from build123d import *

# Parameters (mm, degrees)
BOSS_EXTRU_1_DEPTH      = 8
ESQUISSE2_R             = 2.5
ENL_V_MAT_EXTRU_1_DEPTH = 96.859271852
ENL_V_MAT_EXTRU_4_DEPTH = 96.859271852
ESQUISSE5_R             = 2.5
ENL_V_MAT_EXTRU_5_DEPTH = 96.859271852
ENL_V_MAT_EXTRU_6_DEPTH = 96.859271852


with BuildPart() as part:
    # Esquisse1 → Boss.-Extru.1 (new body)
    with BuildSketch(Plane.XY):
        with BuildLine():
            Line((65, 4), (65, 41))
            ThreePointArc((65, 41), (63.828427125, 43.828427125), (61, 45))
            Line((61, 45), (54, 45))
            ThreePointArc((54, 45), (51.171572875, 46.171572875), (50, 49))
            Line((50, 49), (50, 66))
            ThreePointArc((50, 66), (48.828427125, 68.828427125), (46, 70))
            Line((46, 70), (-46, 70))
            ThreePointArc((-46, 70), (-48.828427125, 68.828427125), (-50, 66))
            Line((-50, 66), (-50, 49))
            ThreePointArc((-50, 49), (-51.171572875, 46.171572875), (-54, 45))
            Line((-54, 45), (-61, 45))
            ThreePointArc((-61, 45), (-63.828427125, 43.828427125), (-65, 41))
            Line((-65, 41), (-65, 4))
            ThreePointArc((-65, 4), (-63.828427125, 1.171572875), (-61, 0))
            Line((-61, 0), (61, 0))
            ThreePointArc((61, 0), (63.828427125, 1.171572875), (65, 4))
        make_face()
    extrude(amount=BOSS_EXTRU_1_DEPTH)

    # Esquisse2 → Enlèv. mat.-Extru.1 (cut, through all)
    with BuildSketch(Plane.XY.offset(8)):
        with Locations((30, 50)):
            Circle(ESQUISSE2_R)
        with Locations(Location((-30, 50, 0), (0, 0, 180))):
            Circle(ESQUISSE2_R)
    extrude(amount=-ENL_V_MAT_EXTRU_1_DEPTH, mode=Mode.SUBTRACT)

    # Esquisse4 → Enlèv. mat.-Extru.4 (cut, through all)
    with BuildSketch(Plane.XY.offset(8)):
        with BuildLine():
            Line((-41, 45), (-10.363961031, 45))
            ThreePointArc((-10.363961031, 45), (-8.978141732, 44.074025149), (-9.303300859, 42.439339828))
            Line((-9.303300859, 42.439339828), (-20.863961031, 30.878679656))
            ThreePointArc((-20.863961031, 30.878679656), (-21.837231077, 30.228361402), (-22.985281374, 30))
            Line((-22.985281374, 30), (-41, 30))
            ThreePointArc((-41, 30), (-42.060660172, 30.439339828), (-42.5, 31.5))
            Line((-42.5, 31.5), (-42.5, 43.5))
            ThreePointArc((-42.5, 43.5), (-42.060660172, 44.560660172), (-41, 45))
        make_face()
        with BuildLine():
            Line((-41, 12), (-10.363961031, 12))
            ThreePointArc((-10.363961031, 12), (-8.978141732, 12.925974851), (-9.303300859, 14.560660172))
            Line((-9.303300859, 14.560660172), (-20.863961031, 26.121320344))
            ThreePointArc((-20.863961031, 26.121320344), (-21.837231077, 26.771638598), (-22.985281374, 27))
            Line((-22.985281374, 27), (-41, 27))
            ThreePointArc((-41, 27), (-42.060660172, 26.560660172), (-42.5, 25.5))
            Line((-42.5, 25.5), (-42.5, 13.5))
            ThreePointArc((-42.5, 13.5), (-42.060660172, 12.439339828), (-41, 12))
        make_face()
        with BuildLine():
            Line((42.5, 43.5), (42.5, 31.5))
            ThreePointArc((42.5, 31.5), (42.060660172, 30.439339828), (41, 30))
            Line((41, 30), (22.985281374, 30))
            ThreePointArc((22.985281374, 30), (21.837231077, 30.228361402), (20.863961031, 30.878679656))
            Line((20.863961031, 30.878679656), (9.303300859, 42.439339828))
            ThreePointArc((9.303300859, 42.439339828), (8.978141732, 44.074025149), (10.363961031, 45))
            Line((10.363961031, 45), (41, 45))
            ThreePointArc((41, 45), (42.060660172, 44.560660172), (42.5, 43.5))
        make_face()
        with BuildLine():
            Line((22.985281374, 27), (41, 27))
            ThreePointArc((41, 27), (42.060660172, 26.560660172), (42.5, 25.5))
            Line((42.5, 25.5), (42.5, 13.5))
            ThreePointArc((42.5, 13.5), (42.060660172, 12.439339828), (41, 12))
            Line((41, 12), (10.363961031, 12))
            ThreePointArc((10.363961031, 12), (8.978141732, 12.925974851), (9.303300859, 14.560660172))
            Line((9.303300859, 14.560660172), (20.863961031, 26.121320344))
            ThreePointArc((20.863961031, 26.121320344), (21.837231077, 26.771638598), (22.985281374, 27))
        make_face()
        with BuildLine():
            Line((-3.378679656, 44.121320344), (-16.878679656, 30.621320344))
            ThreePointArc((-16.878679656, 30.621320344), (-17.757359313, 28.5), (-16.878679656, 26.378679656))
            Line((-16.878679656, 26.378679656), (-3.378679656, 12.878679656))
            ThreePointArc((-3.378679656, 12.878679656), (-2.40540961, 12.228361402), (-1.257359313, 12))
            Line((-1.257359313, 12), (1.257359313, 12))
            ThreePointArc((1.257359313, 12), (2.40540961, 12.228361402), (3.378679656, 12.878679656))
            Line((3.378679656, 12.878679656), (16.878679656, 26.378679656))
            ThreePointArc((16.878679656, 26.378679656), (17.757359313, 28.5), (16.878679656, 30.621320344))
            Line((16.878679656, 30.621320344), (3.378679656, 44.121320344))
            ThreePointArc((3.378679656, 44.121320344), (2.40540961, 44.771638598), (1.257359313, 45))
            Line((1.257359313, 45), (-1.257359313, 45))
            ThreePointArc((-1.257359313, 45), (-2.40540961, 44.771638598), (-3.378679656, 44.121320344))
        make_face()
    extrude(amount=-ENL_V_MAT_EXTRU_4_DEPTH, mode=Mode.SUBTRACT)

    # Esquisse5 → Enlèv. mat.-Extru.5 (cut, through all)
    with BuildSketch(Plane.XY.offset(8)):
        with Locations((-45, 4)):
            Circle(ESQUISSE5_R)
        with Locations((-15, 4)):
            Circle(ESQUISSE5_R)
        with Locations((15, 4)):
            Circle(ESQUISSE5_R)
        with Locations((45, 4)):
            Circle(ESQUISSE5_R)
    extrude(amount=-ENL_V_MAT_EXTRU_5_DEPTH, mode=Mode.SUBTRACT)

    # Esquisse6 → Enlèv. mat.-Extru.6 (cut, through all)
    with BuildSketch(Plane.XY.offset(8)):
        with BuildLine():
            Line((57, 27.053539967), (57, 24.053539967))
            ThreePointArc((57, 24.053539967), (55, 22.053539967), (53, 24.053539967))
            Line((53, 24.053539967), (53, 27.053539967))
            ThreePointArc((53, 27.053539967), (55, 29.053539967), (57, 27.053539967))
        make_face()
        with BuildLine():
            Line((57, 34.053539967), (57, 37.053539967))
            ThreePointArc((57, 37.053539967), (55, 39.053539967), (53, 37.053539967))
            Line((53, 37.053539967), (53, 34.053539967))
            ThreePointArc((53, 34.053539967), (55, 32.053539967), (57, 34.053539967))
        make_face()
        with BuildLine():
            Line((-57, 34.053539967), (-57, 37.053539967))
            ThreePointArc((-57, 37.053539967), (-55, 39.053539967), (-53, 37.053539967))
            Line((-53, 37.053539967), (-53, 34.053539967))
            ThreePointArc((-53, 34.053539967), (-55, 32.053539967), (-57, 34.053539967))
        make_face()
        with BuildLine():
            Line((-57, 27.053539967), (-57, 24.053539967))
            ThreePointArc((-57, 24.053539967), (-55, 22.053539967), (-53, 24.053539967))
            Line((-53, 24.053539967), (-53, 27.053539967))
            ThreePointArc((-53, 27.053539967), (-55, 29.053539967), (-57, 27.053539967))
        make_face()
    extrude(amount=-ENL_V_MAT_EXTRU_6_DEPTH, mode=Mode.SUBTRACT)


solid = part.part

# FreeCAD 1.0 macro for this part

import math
import FreeCAD as App
import Part
import Sketcher

doc = App.newDocument("Part")
body = doc.addObject("PartDesign::Body", "Body")

sketch1 = body.newObject("Sketcher::SketchObject", "Sketch")
sketch1.AttachmentSupport = (doc.getObject("XY_Plane"), [""])
sketch1.MapMode = "FlatFace"
sketch1.addGeometry([
    Part.LineSegment(App.Vector(65, 4, 0), App.Vector(65, 41, 0)),
    Part.ArcOfCircle(Part.Circle(App.Vector(61, 41, 0), App.Vector(0, 0, 1), 4), math.radians(0), math.radians(90)),
    Part.LineSegment(App.Vector(61, 45, 0), App.Vector(54, 45, 0)),
    Part.ArcOfCircle(Part.Circle(App.Vector(54, 49, 0), App.Vector(0, 0, 1), 4), math.radians(180), math.radians(270)),
    Part.LineSegment(App.Vector(50, 49, 0), App.Vector(50, 66, 0)),
    Part.ArcOfCircle(Part.Circle(App.Vector(46, 66, 0), App.Vector(0, 0, 1), 4), math.radians(0), math.radians(90)),
    Part.LineSegment(App.Vector(46, 70, 0), App.Vector(-46, 70, 0)),
    Part.ArcOfCircle(Part.Circle(App.Vector(-46, 66, 0), App.Vector(0, 0, 1), 4), math.radians(90), math.radians(180)),
    Part.LineSegment(App.Vector(-50, 66, 0), App.Vector(-50, 49, 0)),
    Part.ArcOfCircle(Part.Circle(App.Vector(-54, 49, 0), App.Vector(0, 0, 1), 4), math.radians(-90), math.radians(0)),
    Part.LineSegment(App.Vector(-54, 45, 0), App.Vector(-61, 45, 0)),
    Part.ArcOfCircle(Part.Circle(App.Vector(-61, 41, 0), App.Vector(0, 0, 1), 4), math.radians(90), math.radians(180)),
    Part.LineSegment(App.Vector(-65, 41, 0), App.Vector(-65, 4, 0)),
    Part.ArcOfCircle(Part.Circle(App.Vector(-61, 4, 0), App.Vector(0, 0, 1), 4), math.radians(180), math.radians(270)),
    Part.LineSegment(App.Vector(-61, 0, 0), App.Vector(61, 0, 0)),
    Part.ArcOfCircle(Part.Circle(App.Vector(61, 4, 0), App.Vector(0, 0, 1), 4), math.radians(-90), math.radians(0)),
], False)
sketch1.addConstraint([
    Sketcher.Constraint("Tangent", 0, 2, 1, 1),
    Sketcher.Constraint("Tangent", 1, 2, 2, 1),
    Sketcher.Constraint("Tangent", 2, 2, 3, 2),
    Sketcher.Constraint("Tangent", 3, 1, 4, 1),
    Sketcher.Constraint("Tangent", 4, 2, 5, 1),
    Sketcher.Constraint("Tangent", 5, 2, 6, 1),
    Sketcher.Constraint("Tangent", 6, 2, 7, 1),
    Sketcher.Constraint("Tangent", 7, 2, 8, 1),
    Sketcher.Constraint("Tangent", 8, 2, 9, 2),
    Sketcher.Constraint("Tangent", 9, 1, 10, 1),
    Sketcher.Constraint("Tangent", 10, 2, 11, 1),
    Sketcher.Constraint("Tangent", 11, 2, 12, 1),
    Sketcher.Constraint("Tangent", 12, 2, 13, 1),
    Sketcher.Constraint("Tangent", 13, 2, 14, 1),
    Sketcher.Constraint("Tangent", 14, 2, 15, 1),
    Sketcher.Constraint("Tangent", 15, 2, 0, 1),
    Sketcher.Constraint("Vertical", 0),
    Sketcher.Constraint("Horizontal", 2),
    Sketcher.Constraint("Vertical", 4),
    Sketcher.Constraint("Horizontal", 6),
    Sketcher.Constraint("Vertical", 8),
    Sketcher.Constraint("Horizontal", 10),
    Sketcher.Constraint("Vertical", 12),
    Sketcher.Constraint("Horizontal", 14),
    Sketcher.Constraint("Equal", 1, 3),
    Sketcher.Constraint("Equal", 3, 5),
    Sketcher.Constraint("Equal", 5, 7),
    Sketcher.Constraint("Equal", 7, 9),
    Sketcher.Constraint("Equal", 9, 11),
    Sketcher.Constraint("Equal", 11, 13),
    Sketcher.Constraint("Equal", 13, 15),
    Sketcher.Constraint("Symmetric", 13, 2, 14, 2, -1, 1),
    Sketcher.Constraint("Symmetric", 3, 3, 9, 3, -2),
    Sketcher.Constraint("Radius", 1, 4.0),
    Sketcher.Constraint("DistanceX", 2, 2, 2, 1, 7.0),
    Sketcher.Constraint("DistanceX", 6, 2, 6, 1, 92.0),
    Sketcher.Constraint("DistanceY", 0, 1, 0, 2, 37.0),
    Sketcher.Constraint("DistanceY", 4, 1, 4, 2, 17.0),
])
pad1 = body.newObject("PartDesign::Pad", "Pad")
pad1.Profile = sketch1
pad1.Length = 8

sketch2 = body.newObject("Sketcher::SketchObject", "Sketch001")
sketch2.AttachmentSupport = (doc.getObject("XY_Plane"), [""])
sketch2.MapMode = "FlatFace"
sketch2.AttachmentOffset = App.Placement(App.Vector(0, 0, 8), App.Rotation())
sketch2.addGeometry([
    Part.Circle(App.Vector(30, 50, 0), App.Vector(0, 0, 1), 2.5),
    Part.Circle(App.Vector(-30, 50, 0), App.Vector(0, 0, 1), 2.5),
], False)
sketch2.addConstraint([
    Sketcher.Constraint("Equal", 0, 1),
    Sketcher.Constraint("Symmetric", 0, 3, 1, 3, -2),
    Sketcher.Constraint("Diameter", 0, 5.0),
    Sketcher.Constraint("DistanceX", -1, 1, 0, 3, 30.0),
    Sketcher.Constraint("DistanceY", -1, 1, 0, 3, 50.0),
])
pocket1 = body.newObject("PartDesign::Pocket", "Pocket")
pocket1.Profile = sketch2
pocket1.Type = "ThroughAll"

sketch3 = body.newObject("Sketcher::SketchObject", "Sketch002")
sketch3.AttachmentSupport = (doc.getObject("XY_Plane"), [""])
sketch3.MapMode = "FlatFace"
sketch3.AttachmentOffset = App.Placement(App.Vector(0, 0, 8), App.Rotation())
sketch3.addGeometry([
    Part.LineSegment(App.Vector(-10.363961, 45, 0), App.Vector(-41, 45, 0)),
    Part.ArcOfCircle(Part.Circle(App.Vector(-41, 43.5, 0), App.Vector(0, 0, 1), 1.5), math.radians(90), math.radians(180)),
    Part.LineSegment(App.Vector(-42.5, 43.5, 0), App.Vector(-42.5, 31.5, 0)),
    Part.ArcOfCircle(Part.Circle(App.Vector(-41, 31.5, 0), App.Vector(0, 0, 1), 1.5), math.radians(180), math.radians(270)),
    Part.LineSegment(App.Vector(-41, 30, 0), App.Vector(-22.985281, 30, 0)),
    Part.ArcOfCircle(Part.Circle(App.Vector(-22.985281, 33, 0), App.Vector(0, 0, 1), 3), math.radians(-90), math.radians(-45)),
    Part.LineSegment(App.Vector(-20.863961, 30.87868, 0), App.Vector(-9.303301, 42.43934, 0)),
    Part.ArcOfCircle(Part.Circle(App.Vector(-10.363961, 43.5, 0), App.Vector(0, 0, 1), 1.5), math.radians(-45), math.radians(90)),
    Part.LineSegment(App.Vector(-41, 12, 0), App.Vector(-10.363961, 12, 0)),
    Part.ArcOfCircle(Part.Circle(App.Vector(-10.363961, 13.5, 0), App.Vector(0, 0, 1), 1.5), math.radians(-90), math.radians(45)),
    Part.LineSegment(App.Vector(-9.303301, 14.56066, 0), App.Vector(-20.863961, 26.12132, 0)),
    Part.ArcOfCircle(Part.Circle(App.Vector(-22.985281, 24, 0), App.Vector(0, 0, 1), 3), math.radians(45), math.radians(90)),
    Part.LineSegment(App.Vector(-22.985281, 27, 0), App.Vector(-41, 27, 0)),
    Part.ArcOfCircle(Part.Circle(App.Vector(-41, 25.5, 0), App.Vector(0, 0, 1), 1.5), math.radians(90), math.radians(180)),
    Part.LineSegment(App.Vector(-42.5, 25.5, 0), App.Vector(-42.5, 13.5, 0)),
    Part.ArcOfCircle(Part.Circle(App.Vector(-41, 13.5, 0), App.Vector(0, 0, 1), 1.5), math.radians(180), math.radians(270)),
    Part.LineSegment(App.Vector(42.5, 31.5, 0), App.Vector(42.5, 43.5, 0)),
    Part.ArcOfCircle(Part.Circle(App.Vector(41, 43.5, 0), App.Vector(0, 0, 1), 1.5), math.radians(0), math.radians(90)),
    Part.LineSegment(App.Vector(41, 45, 0), App.Vector(10.363961, 45, 0)),
    Part.ArcOfCircle(Part.Circle(App.Vector(10.363961, 43.5, 0), App.Vector(0, 0, 1), 1.5), math.radians(90), math.radians(225)),
    Part.LineSegment(App.Vector(9.303301, 42.43934, 0), App.Vector(20.863961, 30.87868, 0)),
    Part.ArcOfCircle(Part.Circle(App.Vector(22.985281, 33, 0), App.Vector(0, 0, 1), 3), math.radians(-135), math.radians(-90)),
    Part.LineSegment(App.Vector(22.985281, 30, 0), App.Vector(41, 30, 0)),
    Part.ArcOfCircle(Part.Circle(App.Vector(41, 31.5, 0), App.Vector(0, 0, 1), 1.5), math.radians(-90), math.radians(0)),
    Part.LineSegment(App.Vector(41, 27, 0), App.Vector(22.985281, 27, 0)),
    Part.ArcOfCircle(Part.Circle(App.Vector(22.985281, 24, 0), App.Vector(0, 0, 1), 3), math.radians(90), math.radians(135)),
    Part.LineSegment(App.Vector(20.863961, 26.12132, 0), App.Vector(9.303301, 14.56066, 0)),
    Part.ArcOfCircle(Part.Circle(App.Vector(10.363961, 13.5, 0), App.Vector(0, 0, 1), 1.5), math.radians(135), math.radians(270)),
    Part.LineSegment(App.Vector(10.363961, 12, 0), App.Vector(41, 12, 0)),
    Part.ArcOfCircle(Part.Circle(App.Vector(41, 13.5, 0), App.Vector(0, 0, 1), 1.5), math.radians(-90), math.radians(0)),
    Part.LineSegment(App.Vector(42.5, 13.5, 0), App.Vector(42.5, 25.5, 0)),
    Part.ArcOfCircle(Part.Circle(App.Vector(41, 25.5, 0), App.Vector(0, 0, 1), 1.5), math.radians(0), math.radians(90)),
    Part.LineSegment(App.Vector(-3.37868, 44.12132, 0), App.Vector(-16.87868, 30.62132, 0)),
    Part.ArcOfCircle(Part.Circle(App.Vector(-14.757359, 28.5, 0), App.Vector(0, 0, 1), 3), math.radians(135), math.radians(225)),
    Part.LineSegment(App.Vector(-16.87868, 26.37868, 0), App.Vector(-3.37868, 12.87868, 0)),
    Part.ArcOfCircle(Part.Circle(App.Vector(-1.257359, 15, 0), App.Vector(0, 0, 1), 3), math.radians(-135), math.radians(-90)),
    Part.LineSegment(App.Vector(-1.257359, 12, 0), App.Vector(1.257359, 12, 0)),
    Part.ArcOfCircle(Part.Circle(App.Vector(1.257359, 15, 0), App.Vector(0, 0, 1), 3), math.radians(-90), math.radians(-45)),
    Part.LineSegment(App.Vector(3.37868, 12.87868, 0), App.Vector(16.87868, 26.37868, 0)),
    Part.ArcOfCircle(Part.Circle(App.Vector(14.757359, 28.5, 0), App.Vector(0, 0, 1), 3), math.radians(-45), math.radians(45)),
    Part.LineSegment(App.Vector(16.87868, 30.62132, 0), App.Vector(3.37868, 44.12132, 0)),
    Part.ArcOfCircle(Part.Circle(App.Vector(1.257359, 42, 0), App.Vector(0, 0, 1), 3), math.radians(45), math.radians(90)),
    Part.LineSegment(App.Vector(1.257359, 45, 0), App.Vector(-1.257359, 45, 0)),
    Part.ArcOfCircle(Part.Circle(App.Vector(-1.257359, 42, 0), App.Vector(0, 0, 1), 3), math.radians(90), math.radians(135)),
], False)
sketch3.addConstraint([
    Sketcher.Constraint("Tangent", 0, 2, 1, 1),
    Sketcher.Constraint("Tangent", 1, 2, 2, 1),
    Sketcher.Constraint("Tangent", 2, 2, 3, 1),
    Sketcher.Constraint("Tangent", 3, 2, 4, 1),
    Sketcher.Constraint("Tangent", 4, 2, 5, 1),
    Sketcher.Constraint("Tangent", 5, 2, 6, 1),
    Sketcher.Constraint("Tangent", 6, 2, 7, 1),
    Sketcher.Constraint("Tangent", 7, 2, 0, 1),
    Sketcher.Constraint("Tangent", 8, 2, 9, 1),
    Sketcher.Constraint("Tangent", 9, 2, 10, 1),
    Sketcher.Constraint("Tangent", 10, 2, 11, 1),
    Sketcher.Constraint("Tangent", 11, 2, 12, 1),
    Sketcher.Constraint("Tangent", 12, 2, 13, 1),
    Sketcher.Constraint("Tangent", 13, 2, 14, 1),
    Sketcher.Constraint("Tangent", 14, 2, 15, 1),
    Sketcher.Constraint("Tangent", 15, 2, 8, 1),
    Sketcher.Constraint("Tangent", 16, 2, 17, 1),
    Sketcher.Constraint("Tangent", 17, 2, 18, 1),
    Sketcher.Constraint("Tangent", 18, 2, 19, 1),
    Sketcher.Constraint("Tangent", 19, 2, 20, 1),
    Sketcher.Constraint("Tangent", 20, 2, 21, 1),
    Sketcher.Constraint("Tangent", 21, 2, 22, 1),
    Sketcher.Constraint("Tangent", 22, 2, 23, 1),
    Sketcher.Constraint("Tangent", 23, 2, 16, 1),
    Sketcher.Constraint("Tangent", 24, 2, 25, 1),
    Sketcher.Constraint("Tangent", 25, 2, 26, 1),
    Sketcher.Constraint("Tangent", 26, 2, 27, 1),
    Sketcher.Constraint("Tangent", 27, 2, 28, 1),
    Sketcher.Constraint("Tangent", 28, 2, 29, 1),
    Sketcher.Constraint("Tangent", 29, 2, 30, 1),
    Sketcher.Constraint("Tangent", 30, 2, 31, 1),
    Sketcher.Constraint("Tangent", 31, 2, 24, 1),
    Sketcher.Constraint("Tangent", 32, 2, 33, 1),
    Sketcher.Constraint("Tangent", 33, 2, 34, 1),
    Sketcher.Constraint("Tangent", 34, 2, 35, 1),
    Sketcher.Constraint("Tangent", 35, 2, 36, 1),
    Sketcher.Constraint("Tangent", 36, 2, 37, 1),
    Sketcher.Constraint("Tangent", 37, 2, 38, 1),
    Sketcher.Constraint("Tangent", 38, 2, 39, 1),
    Sketcher.Constraint("Tangent", 39, 2, 40, 1),
    Sketcher.Constraint("Tangent", 40, 2, 41, 1),
    Sketcher.Constraint("Tangent", 41, 2, 42, 1),
    Sketcher.Constraint("Tangent", 42, 2, 43, 1),
    Sketcher.Constraint("Tangent", 43, 2, 32, 1),
    Sketcher.Constraint("Horizontal", 0),
    Sketcher.Constraint("Vertical", 2),
    Sketcher.Constraint("Horizontal", 4),
    Sketcher.Constraint("Horizontal", 8),
    Sketcher.Constraint("Horizontal", 12),
    Sketcher.Constraint("Vertical", 14),
    Sketcher.Constraint("Vertical", 16),
    Sketcher.Constraint("Horizontal", 18),
    Sketcher.Constraint("Horizontal", 22),
    Sketcher.Constraint("Horizontal", 24),
    Sketcher.Constraint("Horizontal", 28),
    Sketcher.Constraint("Vertical", 30),
    Sketcher.Constraint("Horizontal", 36),
    Sketcher.Constraint("Horizontal", 42),
    Sketcher.Constraint("Equal", 1, 3),
    Sketcher.Constraint("Equal", 3, 7),
    Sketcher.Constraint("Equal", 7, 9),
    Sketcher.Constraint("Equal", 5, 11),
    Sketcher.Constraint("Equal", 9, 13),
    Sketcher.Constraint("Equal", 13, 15),
    Sketcher.Constraint("Equal", 15, 17),
    Sketcher.Constraint("Equal", 17, 19),
    Sketcher.Constraint("Equal", 11, 21),
    Sketcher.Constraint("Equal", 19, 23),
    Sketcher.Constraint("Equal", 21, 25),
    Sketcher.Constraint("Equal", 23, 27),
    Sketcher.Constraint("Equal", 27, 29),
    Sketcher.Constraint("Equal", 29, 31),
    Sketcher.Constraint("Equal", 25, 33),
    Sketcher.Constraint("Equal", 33, 35),
    Sketcher.Constraint("Equal", 35, 37),
    Sketcher.Constraint("Equal", 37, 39),
    Sketcher.Constraint("Equal", 39, 41),
    Sketcher.Constraint("Equal", 41, 43),
    Sketcher.Constraint("Symmetric", 1, 3, 17, 3, -2),
    Sketcher.Constraint("Symmetric", 5, 3, 21, 3, -2),
    Sketcher.Constraint("Symmetric", 11, 3, 25, 3, -2),
    Sketcher.Constraint("Symmetric", 9, 3, 27, 3, -2),
    Sketcher.Constraint("Symmetric", 33, 3, 39, 3, -2),
    Sketcher.Constraint("Perpendicular", 6, 10),
    Sketcher.Constraint("Parallel", 10, 20),
    Sketcher.Constraint("Perpendicular", 20, 26),
    Sketcher.Constraint("Parallel", 26, 32),
    Sketcher.Constraint("Perpendicular", 32, 34),
    Sketcher.Constraint("Perpendicular", 34, 38),
    Sketcher.Constraint("Perpendicular", 38, 40),
    Sketcher.Constraint("Horizontal", 28, 2, 35, 2),
    Sketcher.Constraint("Horizontal", 18, 2, 41, 2),
    Sketcher.Constraint("Vertical", 7, 3, 9, 3),
    Sketcher.Constraint("Vertical", 5, 3, 11, 3),
    Sketcher.Constraint("Vertical", 3, 3, 13, 3),
    Sketcher.Constraint("Vertical", 23, 3, 29, 3),
    Sketcher.Constraint("Vertical", 37, 3, 41, 3),
    Sketcher.Constraint("Radius", 5, 3.0),
    Sketcher.Constraint("Radius", 1, 1.5),
    Sketcher.Constraint("DistanceY", 2, 2, 2, 1, 12.0),
    Sketcher.Constraint("DistanceX", 1, 3, -1, 1, 41.0),
    Sketcher.Constraint("DistanceY", -1, 1, 5, 3, 33.0),
    Sketcher.Constraint("DistanceY", -1, 1, 11, 3, 24.0),
    Sketcher.Constraint("DistanceX", 0, 2, 0, 1, 30.636039),
    Sketcher.Constraint("DistanceX", 36, 1, 36, 2, 2.514719),
])
pocket2 = body.newObject("PartDesign::Pocket", "Pocket001")
pocket2.Profile = sketch3
pocket2.Type = "ThroughAll"

sketch4 = body.newObject("Sketcher::SketchObject", "Sketch003")
sketch4.AttachmentSupport = (doc.getObject("XY_Plane"), [""])
sketch4.MapMode = "FlatFace"
sketch4.AttachmentOffset = App.Placement(App.Vector(0, 0, 8), App.Rotation())
sketch4.addGeometry([
    Part.Circle(App.Vector(-45, 4, 0), App.Vector(0, 0, 1), 2.5),
    Part.Circle(App.Vector(-15, 4, 0), App.Vector(0, 0, 1), 2.5),
    Part.Circle(App.Vector(15, 4, 0), App.Vector(0, 0, 1), 2.5),
    Part.Circle(App.Vector(45, 4, 0), App.Vector(0, 0, 1), 2.5),
], False)
sketch4.addConstraint([
    Sketcher.Constraint("Equal", 0, 1),
    Sketcher.Constraint("Equal", 1, 2),
    Sketcher.Constraint("Equal", 2, 3),
    Sketcher.Constraint("Symmetric", 1, 3, 2, 3, -2),
    Sketcher.Constraint("Symmetric", 0, 3, 3, 3, -2),
    Sketcher.Constraint("Horizontal", 0, 3, 1, 3),
    Sketcher.Constraint("Diameter", 0, 5.0),
    Sketcher.Constraint("DistanceX", 0, 3, -1, 1, 45.0),
    Sketcher.Constraint("DistanceY", -1, 1, 0, 3, 4.0),
    Sketcher.Constraint("DistanceX", 1, 3, -1, 1, 15.0),
])
pocket3 = body.newObject("PartDesign::Pocket", "Pocket002")
pocket3.Profile = sketch4
pocket3.Type = "ThroughAll"

sketch5 = body.newObject("Sketcher::SketchObject", "Sketch004")
sketch5.AttachmentSupport = (doc.getObject("XY_Plane"), [""])
sketch5.MapMode = "FlatFace"
sketch5.AttachmentOffset = App.Placement(App.Vector(0, 0, 8), App.Rotation())
sketch5.addGeometry([
    Part.LineSegment(App.Vector(57, 24.05354, 0), App.Vector(57, 27.05354, 0)),
    Part.ArcOfCircle(Part.Circle(App.Vector(55, 27.05354, 0), App.Vector(0, 0, 1), 2), math.radians(0), math.radians(180)),
    Part.LineSegment(App.Vector(53, 27.05354, 0), App.Vector(53, 24.05354, 0)),
    Part.ArcOfCircle(Part.Circle(App.Vector(55, 24.05354, 0), App.Vector(0, 0, 1), 2), math.radians(180), math.radians(360)),
    Part.LineSegment(App.Vector(57, 34.05354, 0), App.Vector(57, 37.05354, 0)),
    Part.ArcOfCircle(Part.Circle(App.Vector(55, 37.05354, 0), App.Vector(0, 0, 1), 2), math.radians(0), math.radians(180)),
    Part.LineSegment(App.Vector(53, 37.05354, 0), App.Vector(53, 34.05354, 0)),
    Part.ArcOfCircle(Part.Circle(App.Vector(55, 34.05354, 0), App.Vector(0, 0, 1), 2), math.radians(180), math.radians(360)),
    Part.LineSegment(App.Vector(-57, 37.05354, 0), App.Vector(-57, 34.05354, 0)),
    Part.ArcOfCircle(Part.Circle(App.Vector(-55, 34.05354, 0), App.Vector(0, 0, 1), 2), math.radians(180), math.radians(360)),
    Part.LineSegment(App.Vector(-53, 34.05354, 0), App.Vector(-53, 37.05354, 0)),
    Part.ArcOfCircle(Part.Circle(App.Vector(-55, 37.05354, 0), App.Vector(0, 0, 1), 2), math.radians(0), math.radians(180)),
    Part.LineSegment(App.Vector(-57, 27.05354, 0), App.Vector(-57, 24.05354, 0)),
    Part.ArcOfCircle(Part.Circle(App.Vector(-55, 24.05354, 0), App.Vector(0, 0, 1), 2), math.radians(180), math.radians(360)),
    Part.LineSegment(App.Vector(-53, 24.05354, 0), App.Vector(-53, 27.05354, 0)),
    Part.ArcOfCircle(Part.Circle(App.Vector(-55, 27.05354, 0), App.Vector(0, 0, 1), 2), math.radians(0), math.radians(180)),
], False)
sketch5.addConstraint([
    Sketcher.Constraint("Tangent", 0, 2, 1, 1),
    Sketcher.Constraint("Tangent", 1, 2, 2, 1),
    Sketcher.Constraint("Tangent", 2, 2, 3, 1),
    Sketcher.Constraint("Tangent", 3, 2, 0, 1),
    Sketcher.Constraint("Tangent", 4, 2, 5, 1),
    Sketcher.Constraint("Tangent", 5, 2, 6, 1),
    Sketcher.Constraint("Tangent", 6, 2, 7, 1),
    Sketcher.Constraint("Tangent", 7, 2, 4, 1),
    Sketcher.Constraint("Tangent", 8, 2, 9, 1),
    Sketcher.Constraint("Tangent", 9, 2, 10, 1),
    Sketcher.Constraint("Tangent", 10, 2, 11, 1),
    Sketcher.Constraint("Tangent", 11, 2, 8, 1),
    Sketcher.Constraint("Tangent", 12, 2, 13, 1),
    Sketcher.Constraint("Tangent", 13, 2, 14, 1),
    Sketcher.Constraint("Tangent", 14, 2, 15, 1),
    Sketcher.Constraint("Tangent", 15, 2, 12, 1),
    Sketcher.Constraint("Vertical", 0),
    Sketcher.Constraint("Vertical", 2),
    Sketcher.Constraint("Vertical", 4),
    Sketcher.Constraint("Vertical", 6),
    Sketcher.Constraint("Vertical", 8),
    Sketcher.Constraint("Vertical", 10),
    Sketcher.Constraint("Vertical", 12),
    Sketcher.Constraint("Vertical", 14),
    Sketcher.Constraint("Equal", 3, 5),
    Sketcher.Constraint("Equal", 7, 9),
    Sketcher.Constraint("Equal", 11, 13),
    Sketcher.Constraint("Symmetric", 7, 3, 9, 3, -2),
    Sketcher.Constraint("Symmetric", 3, 3, 13, 3, -2),
    Sketcher.Constraint("Horizontal", 5, 3, 11, 3),
    Sketcher.Constraint("Horizontal", 1, 3, 15, 3),
    Sketcher.Constraint("Vertical", 3, 3, 5, 3),
    Sketcher.Constraint("Equal", 2, 4),
    Sketcher.Constraint("Radius", 1, 2.0),
    Sketcher.Constraint("DistanceY", 0, 1, 0, 2, 3.0),
    Sketcher.Constraint("DistanceX", -1, 1, 1, 3, 55.0),
    Sketcher.Constraint("DistanceY", 1, 3, 5, 3, 10.0),
    Sketcher.Constraint("DistanceY", -1, 1, 1, 3, 27.05354),
])
pocket4 = body.newObject("PartDesign::Pocket", "Pocket003")
pocket4.Profile = sketch5
pocket4.Type = "ThroughAll"

doc.recompute()
